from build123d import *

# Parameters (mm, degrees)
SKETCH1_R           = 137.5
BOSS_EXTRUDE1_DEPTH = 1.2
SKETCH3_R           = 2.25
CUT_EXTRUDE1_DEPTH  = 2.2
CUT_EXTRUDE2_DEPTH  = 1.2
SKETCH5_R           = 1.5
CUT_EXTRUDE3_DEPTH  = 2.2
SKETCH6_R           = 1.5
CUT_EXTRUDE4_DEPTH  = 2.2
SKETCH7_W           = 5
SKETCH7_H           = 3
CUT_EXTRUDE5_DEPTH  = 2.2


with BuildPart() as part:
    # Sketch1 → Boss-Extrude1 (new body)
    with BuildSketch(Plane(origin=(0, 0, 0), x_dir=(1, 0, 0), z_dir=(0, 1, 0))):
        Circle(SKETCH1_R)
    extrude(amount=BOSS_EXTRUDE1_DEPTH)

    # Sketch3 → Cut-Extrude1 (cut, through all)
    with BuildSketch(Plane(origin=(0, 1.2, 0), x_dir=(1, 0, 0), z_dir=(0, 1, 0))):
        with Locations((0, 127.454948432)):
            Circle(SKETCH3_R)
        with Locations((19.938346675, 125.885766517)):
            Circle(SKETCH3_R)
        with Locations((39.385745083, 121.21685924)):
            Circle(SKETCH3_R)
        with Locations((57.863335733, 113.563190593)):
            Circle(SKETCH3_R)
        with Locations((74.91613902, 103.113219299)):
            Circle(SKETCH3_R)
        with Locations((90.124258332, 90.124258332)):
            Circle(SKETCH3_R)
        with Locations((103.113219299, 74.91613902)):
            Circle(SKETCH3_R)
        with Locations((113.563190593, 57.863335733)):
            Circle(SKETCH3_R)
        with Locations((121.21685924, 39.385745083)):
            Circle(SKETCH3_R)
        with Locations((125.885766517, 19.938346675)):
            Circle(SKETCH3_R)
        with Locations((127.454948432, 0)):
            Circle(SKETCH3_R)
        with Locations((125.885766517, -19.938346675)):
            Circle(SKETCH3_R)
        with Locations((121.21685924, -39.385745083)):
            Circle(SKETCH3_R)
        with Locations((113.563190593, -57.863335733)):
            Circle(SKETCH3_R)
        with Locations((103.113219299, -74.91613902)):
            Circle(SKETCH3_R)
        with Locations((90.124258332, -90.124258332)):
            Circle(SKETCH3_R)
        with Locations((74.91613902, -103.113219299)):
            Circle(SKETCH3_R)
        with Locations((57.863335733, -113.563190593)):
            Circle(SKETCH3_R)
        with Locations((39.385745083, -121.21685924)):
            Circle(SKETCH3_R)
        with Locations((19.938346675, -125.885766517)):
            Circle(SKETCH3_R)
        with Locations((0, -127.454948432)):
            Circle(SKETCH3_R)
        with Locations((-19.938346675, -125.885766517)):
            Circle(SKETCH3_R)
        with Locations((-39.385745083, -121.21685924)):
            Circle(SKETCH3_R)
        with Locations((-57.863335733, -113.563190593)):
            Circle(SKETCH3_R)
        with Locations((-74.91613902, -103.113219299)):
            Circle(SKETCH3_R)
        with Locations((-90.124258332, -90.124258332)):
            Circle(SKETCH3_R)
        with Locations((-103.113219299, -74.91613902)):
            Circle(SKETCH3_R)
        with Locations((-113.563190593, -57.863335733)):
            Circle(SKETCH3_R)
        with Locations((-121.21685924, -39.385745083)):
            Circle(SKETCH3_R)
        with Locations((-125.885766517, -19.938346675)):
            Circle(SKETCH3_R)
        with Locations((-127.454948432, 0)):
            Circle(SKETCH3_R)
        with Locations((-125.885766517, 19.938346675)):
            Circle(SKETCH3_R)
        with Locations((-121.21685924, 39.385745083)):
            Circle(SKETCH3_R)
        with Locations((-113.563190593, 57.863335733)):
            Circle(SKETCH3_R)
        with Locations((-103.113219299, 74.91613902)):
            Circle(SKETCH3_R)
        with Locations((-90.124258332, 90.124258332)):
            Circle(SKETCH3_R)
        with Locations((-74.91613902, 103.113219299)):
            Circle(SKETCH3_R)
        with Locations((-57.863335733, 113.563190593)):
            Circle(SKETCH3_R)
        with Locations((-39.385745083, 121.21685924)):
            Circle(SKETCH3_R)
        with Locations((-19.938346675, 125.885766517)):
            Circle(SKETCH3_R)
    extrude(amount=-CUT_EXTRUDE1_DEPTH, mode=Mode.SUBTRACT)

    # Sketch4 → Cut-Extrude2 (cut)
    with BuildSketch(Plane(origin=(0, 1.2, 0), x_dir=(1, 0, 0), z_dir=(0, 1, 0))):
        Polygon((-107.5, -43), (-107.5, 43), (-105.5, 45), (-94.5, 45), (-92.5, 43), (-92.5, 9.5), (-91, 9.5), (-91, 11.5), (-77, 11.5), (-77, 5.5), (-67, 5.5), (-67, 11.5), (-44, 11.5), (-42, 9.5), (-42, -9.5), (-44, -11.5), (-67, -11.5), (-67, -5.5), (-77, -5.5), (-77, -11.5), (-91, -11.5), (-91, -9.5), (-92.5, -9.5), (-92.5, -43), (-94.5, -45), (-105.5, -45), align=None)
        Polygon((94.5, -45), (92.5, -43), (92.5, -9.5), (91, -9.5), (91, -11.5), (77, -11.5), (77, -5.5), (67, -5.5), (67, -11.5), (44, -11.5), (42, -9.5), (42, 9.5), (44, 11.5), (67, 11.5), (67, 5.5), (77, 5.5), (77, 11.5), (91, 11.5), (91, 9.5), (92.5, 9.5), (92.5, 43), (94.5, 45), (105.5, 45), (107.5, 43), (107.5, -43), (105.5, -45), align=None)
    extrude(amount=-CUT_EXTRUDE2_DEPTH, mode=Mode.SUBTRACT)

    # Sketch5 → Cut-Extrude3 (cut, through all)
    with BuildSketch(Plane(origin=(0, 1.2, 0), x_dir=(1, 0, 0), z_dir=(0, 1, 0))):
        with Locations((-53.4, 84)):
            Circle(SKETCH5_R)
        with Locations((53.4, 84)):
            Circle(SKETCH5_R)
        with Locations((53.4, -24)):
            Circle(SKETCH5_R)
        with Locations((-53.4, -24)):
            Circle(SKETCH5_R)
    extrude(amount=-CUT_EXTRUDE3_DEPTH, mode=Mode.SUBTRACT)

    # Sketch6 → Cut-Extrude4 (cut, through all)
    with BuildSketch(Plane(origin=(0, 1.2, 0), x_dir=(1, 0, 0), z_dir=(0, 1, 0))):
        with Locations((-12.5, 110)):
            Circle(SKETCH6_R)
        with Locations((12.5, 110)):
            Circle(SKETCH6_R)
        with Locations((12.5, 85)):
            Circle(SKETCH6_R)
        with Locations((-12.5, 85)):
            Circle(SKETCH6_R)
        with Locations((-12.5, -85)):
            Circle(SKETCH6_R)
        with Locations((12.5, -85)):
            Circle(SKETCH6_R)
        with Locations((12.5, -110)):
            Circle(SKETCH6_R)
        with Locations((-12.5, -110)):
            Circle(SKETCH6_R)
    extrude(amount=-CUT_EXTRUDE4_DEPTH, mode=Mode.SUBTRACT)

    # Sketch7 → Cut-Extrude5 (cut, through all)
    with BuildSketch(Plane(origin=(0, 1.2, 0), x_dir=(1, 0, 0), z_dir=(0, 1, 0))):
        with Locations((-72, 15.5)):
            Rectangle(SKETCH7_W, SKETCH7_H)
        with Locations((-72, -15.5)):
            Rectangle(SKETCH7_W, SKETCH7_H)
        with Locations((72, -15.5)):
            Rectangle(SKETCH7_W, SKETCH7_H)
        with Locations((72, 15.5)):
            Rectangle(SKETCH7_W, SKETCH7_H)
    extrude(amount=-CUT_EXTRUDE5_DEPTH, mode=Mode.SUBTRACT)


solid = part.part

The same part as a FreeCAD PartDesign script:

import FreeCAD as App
import Part
import Sketcher

V = App.Vector


def add_polygon(sketch, points):
    """Adds a closed chain of lines whose ends are joined by coincident constraints."""
    first, n = sketch.GeometryCount, len(points)
    for a, b in zip(points, points[1:] + points[:1]):
        sketch.addGeometry(Part.LineSegment(App.Vector(*a, 0), App.Vector(*b, 0)), False)
    for i in range(n):
        sketch.addConstraint(Sketcher.Constraint("Coincident", first + i, 2, first + (i + 1) % n, 1))

doc = App.newDocument("Part")
body = doc.addObject("PartDesign::Body", "Body")

# Sketch on XZ plane
sketch1 = doc.addObject("Sketcher::SketchObject", "Sketch")
body.addObject(sketch1)
sketch1.AttachmentSupport = (doc.XZ_Plane, [""])
sketch1.MapMode = "FlatFace"
sketch1.addGeometry(Part.Circle(V(0, 0, 0), V(0, 0, 1), 138), False)
sketch1.addConstraint([
    Sketcher.Constraint("Coincident", 0, 3, -1, 1),
    Sketcher.Constraint("Diameter", 0, 275.0),
])
pad1 = doc.addObject("PartDesign::Pad", "Pad")
body.addObject(pad1)
pad1.Profile = sketch1
pad1.Length = 1.2
pad1.Reversed = True

# Sketch on XZ plane
sketch2 = doc.addObject("Sketcher::SketchObject", "Sketch001")
body.addObject(sketch2)
sketch2.AttachmentSupport = (doc.XZ_Plane, [""])
sketch2.MapMode = "FlatFace"
sketch2.AttachmentOffset = App.Placement(V(0, 0, -1.2), App.Rotation())
sketch2.addGeometry([
    Part.Circle(V(0, -127.5, 0), V(0, 0, 1), 2.2),  # 0
    Part.Circle(V(19.9, -125.9, 0), V(0, 0, 1), 2.2),  # 1
    Part.Circle(V(39.4, -121.2, 0), V(0, 0, 1), 2.2),  # 2
    Part.Circle(V(57.9, -113.6, 0), V(0, 0, 1), 2.2),  # 3
    Part.Circle(V(74.9, -103.1, 0), V(0, 0, 1), 2.2),  # 4
    Part.Circle(V(90.1, -90.1, 0), V(0, 0, 1), 2.2),  # 5
    Part.Circle(V(103.1, -74.9, 0), V(0, 0, 1), 2.2),  # 6
    Part.Circle(V(113.6, -57.9, 0), V(0, 0, 1), 2.2),  # 7
    Part.Circle(V(121.2, -39.4, 0), V(0, 0, 1), 2.2),  # 8
    Part.Circle(V(125.9, -19.9, 0), V(0, 0, 1), 2.2),  # 9
    Part.Circle(V(127.5, 0, 0), V(0, 0, 1), 2.2),  # 10
    Part.Circle(V(125.9, 19.9, 0), V(0, 0, 1), 2.2),  # 11
    Part.Circle(V(121.2, 39.4, 0), V(0, 0, 1), 2.2),  # 12
    Part.Circle(V(113.6, 57.9, 0), V(0, 0, 1), 2.2),  # 13
    Part.Circle(V(103.1, 74.9, 0), V(0, 0, 1), 2.2),  # 14
    Part.Circle(V(90.1, 90.1, 0), V(0, 0, 1), 2.2),  # 15
    Part.Circle(V(74.9, 103.1, 0), V(0, 0, 1), 2.2),  # 16
    Part.Circle(V(57.9, 113.6, 0), V(0, 0, 1), 2.2),  # 17
    Part.Circle(V(39.4, 121.2, 0), V(0, 0, 1), 2.2),  # 18
    Part.Circle(V(19.9, 125.9, 0), V(0, 0, 1), 2.2),  # 19
    Part.Circle(V(0, 127.5, 0), V(0, 0, 1), 2.2),  # 20
    Part.Circle(V(-19.9, 125.9, 0), V(0, 0, 1), 2.2),  # 21
    Part.Circle(V(-39.4, 121.2, 0), V(0, 0, 1), 2.2),  # 22
    Part.Circle(V(-57.9, 113.6, 0), V(0, 0, 1), 2.2),  # 23
    Part.Circle(V(-74.9, 103.1, 0), V(0, 0, 1), 2.2),  # 24
    Part.Circle(V(-90.1, 90.1, 0), V(0, 0, 1), 2.2),  # 25
    Part.Circle(V(-103.1, 74.9, 0), V(0, 0, 1), 2.2),  # 26
    Part.Circle(V(-113.6, 57.9, 0), V(0, 0, 1), 2.2),  # 27
    Part.Circle(V(-121.2, 39.4, 0), V(0, 0, 1), 2.2),  # 28
    Part.Circle(V(-125.9, 19.9, 0), V(0, 0, 1), 2.2),  # 29
    Part.Circle(V(-127.5, 0, 0), V(0, 0, 1), 2.2),  # 30
    Part.Circle(V(-125.9, -19.9, 0), V(0, 0, 1), 2.2),  # 31
    Part.Circle(V(-121.2, -39.4, 0), V(0, 0, 1), 2.2),  # 32
    Part.Circle(V(-113.6, -57.9, 0), V(0, 0, 1), 2.2),  # 33
    Part.Circle(V(-103.1, -74.9, 0), V(0, 0, 1), 2.2),  # 34
    Part.Circle(V(-90.1, -90.1, 0), V(0, 0, 1), 2.2),  # 35
    Part.Circle(V(-74.9, -103.1, 0), V(0, 0, 1), 2.2),  # 36
    Part.Circle(V(-57.9, -113.6, 0), V(0, 0, 1), 2.2),  # 37
    Part.Circle(V(-39.4, -121.2, 0), V(0, 0, 1), 2.2),  # 38
    Part.Circle(V(-19.9, -125.9, 0), V(0, 0, 1), 2.2),  # 39
], False)
sketch2.addConstraint([
    Sketcher.Constraint("Equal", 0, 1),
    Sketcher.Constraint("Equal", 1, 2),
    Sketcher.Constraint("Equal", 2, 3),
    Sketcher.Constraint("Equal", 3, 4),
    Sketcher.Constraint("Equal", 4, 5),
    Sketcher.Constraint("Equal", 5, 6),
    Sketcher.Constraint("Equal", 6, 7),
    Sketcher.Constraint("Equal", 7, 8),
    Sketcher.Constraint("Equal", 8, 9),
    Sketcher.Constraint("Equal", 9, 10),
    Sketcher.Constraint("Equal", 10, 11),
    Sketcher.Constraint("Equal", 11, 12),
    Sketcher.Constraint("Equal", 12, 13),
    Sketcher.Constraint("Equal", 13, 14),
    Sketcher.Constraint("Equal", 14, 15),
    Sketcher.Constraint("Equal", 15, 16),
    Sketcher.Constraint("Equal", 16, 17),
    Sketcher.Constraint("Equal", 17, 18),
    Sketcher.Constraint("Equal", 18, 19),
    Sketcher.Constraint("Equal", 19, 20),
    Sketcher.Constraint("Equal", 20, 21),
    Sketcher.Constraint("Equal", 21, 22),
    Sketcher.Constraint("Equal", 22, 23),
    Sketcher.Constraint("Equal", 23, 24),
    Sketcher.Constraint("Equal", 24, 25),
    Sketcher.Constraint("Equal", 25, 26),
    Sketcher.Constraint("Equal", 26, 27),
    Sketcher.Constraint("Equal", 27, 28),
    Sketcher.Constraint("Equal", 28, 29),
    Sketcher.Constraint("Equal", 29, 30),
    Sketcher.Constraint("Equal", 30, 31),
    Sketcher.Constraint("Equal", 31, 32),
    Sketcher.Constraint("Equal", 32, 33),
    Sketcher.Constraint("Equal", 33, 34),
    Sketcher.Constraint("Equal", 34, 35),
    Sketcher.Constraint("Equal", 35, 36),
    Sketcher.Constraint("Equal", 36, 37),
    Sketcher.Constraint("Equal", 37, 38),
    Sketcher.Constraint("Equal", 38, 39),
    Sketcher.Constraint("Symmetric", 0, 3, 20, 3, -1, 1),
    Sketcher.Constraint("Symmetric", 1, 3, 21, 3, -1, 1),
    Sketcher.Constraint("Symmetric", 2, 3, 22, 3, -1, 1),
    Sketcher.Constraint("Symmetric", 3, 3, 23, 3, -1, 1),
    Sketcher.Constraint("Symmetric", 4, 3, 24, 3, -1, 1),
    Sketcher.Constraint("Symmetric", 5, 3, 25, 3, -1, 1),
    Sketcher.Constraint("Symmetric", 6, 3, 26, 3, -1, 1),
    Sketcher.Constraint("Symmetric", 7, 3, 27, 3, -1, 1),
    Sketcher.Constraint("Symmetric", 8, 3, 28, 3, -1, 1),
    Sketcher.Constraint("Symmetric", 9, 3, 29, 3, -1, 1),
    Sketcher.Constraint("Symmetric", 10, 3, 30, 3, -1, 1),
    Sketcher.Constraint("Symmetric", 11, 3, 31, 3, -1, 1),
    Sketcher.Constraint("Symmetric", 12, 3, 32, 3, -1, 1),
    Sketcher.Constraint("Symmetric", 13, 3, 33, 3, -1, 1),
    Sketcher.Constraint("Symmetric", 14, 3, 34, 3, -1, 1),
    Sketcher.Constraint("Symmetric", 15, 3, 35, 3, -1, 1),
    Sketcher.Constraint("Symmetric", 16, 3, 36, 3, -1, 1),
    Sketcher.Constraint("Symmetric", 17, 3, 37, 3, -1, 1),
    Sketcher.Constraint("Symmetric", 18, 3, 38, 3, -1, 1),
    Sketcher.Constraint("Symmetric", 19, 3, 39, 3, -1, 1),
    Sketcher.Constraint("Symmetric", 19, 3, 21, 3, -2),
    Sketcher.Constraint("Symmetric", 18, 3, 22, 3, -2),
    Sketcher.Constraint("Symmetric", 17, 3, 23, 3, -2),
    Sketcher.Constraint("Symmetric", 16, 3, 24, 3, -2),
    Sketcher.Constraint("Symmetric", 15, 3, 25, 3, -2),
    Sketcher.Constraint("Symmetric", 14, 3, 26, 3, -2),
    Sketcher.Constraint("Symmetric", 13, 3, 27, 3, -2),
    Sketcher.Constraint("Symmetric", 12, 3, 28, 3, -2),
    Sketcher.Constraint("Symmetric", 11, 3, 29, 3, -2),
    Sketcher.Constraint("PointOnObject", 0, 3, -2),
    Sketcher.Constraint("PointOnObject", 10, 3, -1),
    Sketcher.Constraint("Diameter", 0, 4.5),
    Sketcher.Constraint("DistanceX", 1, 3, 2, 3, 19.447398),
    Sketcher.Constraint("DistanceY", 2, 3, 5, 3, 31.092601),
    Sketcher.Constraint("DistanceX", 5, 3, 8, 3, 31.092601),
    Sketcher.Constraint("DistanceY", 8, 3, 9, 3, 19.447398),
    Sketcher.Constraint("DistanceY", 0, 3, -1, 1, 127.454948),
    Sketcher.Constraint("DistanceY", 2, 3, -1, 1, 121.216859),
    Sketcher.Constraint("DistanceY", 3, 3, -1, 1, 113.563191),
    Sketcher.Constraint("DistanceX", -1, 1, 4, 3, 74.916139),
    Sketcher.Constraint("DistanceY", 4, 3, -1, 1, 103.113219),
    Sketcher.Constraint("DistanceX", -1, 1, 5, 3, 90.124258),
    Sketcher.Constraint("DistanceX", -1, 1, 6, 3, 103.113219),
    Sketcher.Constraint("DistanceY", 6, 3, -1, 1, 74.916139),
    Sketcher.Constraint("DistanceX", -1, 1, 7, 3, 113.563191),
    Sketcher.Constraint("DistanceX", -1, 1, 10, 3, 127.454948),
    Sketcher.Constraint("DistanceY", 0, 3, 1, 3, 1.569182),
    Sketcher.Constraint("DistanceX", 2, 3, 3, 3, 18.477591),
    Sketcher.Constraint("DistanceX", 1, 3, 5, 3, 70.185912),
    Sketcher.Constraint("DistanceY", 7, 3, 8, 3, 18.477591),
    Sketcher.Constraint("DistanceX", 5, 3, 9, 3, 35.761508),
    Sketcher.Constraint("DistanceY", 5, 3, 9, 3, 70.185912),
])
pocket1 = doc.addObject("PartDesign::Pocket", "Pocket")
body.addObject(pocket1)
pocket1.Profile = sketch2
pocket1.Type = "ThroughAll"
pocket1.Reversed = True

# Sketch on XZ plane
sketch3 = doc.addObject("Sketcher::SketchObject", "Sketch002")
body.addObject(sketch3)
sketch3.AttachmentSupport = (doc.XZ_Plane, [""])
sketch3.MapMode = "FlatFace"
sketch3.AttachmentOffset = App.Placement(V(0, 0, -1.2), App.Rotation())
add_polygon(sketch3, [(-107.5, -43), (-107.5, 43), (-105.5, 45), (-94.5, 45), (-92.5, 43), (-92.5, 9.5), (-91, 9.5), (-91, 11.5), (-77, 11.5), (-77, 5.5), (-67, 5.5), (-67, 11.5), (-44, 11.5), (-42, 9.5), (-42, -9.5), (-44, -11.5), (-67, -11.5), (-67, -5.5), (-77, -5.5), (-77, -11.5), (-91, -11.5), (-91, -9.5), (-92.5, -9.5), (-92.5, -43), (-94.5, -45), (-105.5, -45)])  # lines 0-25
add_polygon(sketch3, [(92.5, 43), (94.5, 45), (105.5, 45), (107.5, 43), (107.5, -43), (105.5, -45), (94.5, -45), (92.5, -43), (92.5, -9.5), (91, -9.5), (91, -11.5), (77, -11.5), (77, -5.5), (67, -5.5), (67, -11.5), (44, -11.5), (42, -9.5), (42, 9.5), (44, 11.5), (67, 11.5), (67, 5.5), (77, 5.5), (77, 11.5), (91, 11.5), (91, 9.5), (92.5, 9.5)])  # lines 26-51
sketch3.addConstraint([
    Sketcher.Constraint("Vertical", 0),
    Sketcher.Constraint("Horizontal", 2),
    Sketcher.Constraint("Vertical", 4),
    Sketcher.Constraint("Horizontal", 5),
    Sketcher.Constraint("Vertical", 6),
    Sketcher.Constraint("Horizontal", 7),
    Sketcher.Constraint("Vertical", 8),
    Sketcher.Constraint("Horizontal", 9),
    Sketcher.Constraint("Vertical", 10),
    Sketcher.Constraint("Horizontal", 11),
    Sketcher.Constraint("Vertical", 13),
    Sketcher.Constraint("Horizontal", 15),
    Sketcher.Constraint("Vertical", 16),
    Sketcher.Constraint("Horizontal", 17),
    Sketcher.Constraint("Vertical", 18),
    Sketcher.Constraint("Horizontal", 19),
    Sketcher.Constraint("Vertical", 20),
    Sketcher.Constraint("Horizontal", 21),
    Sketcher.Constraint("Vertical", 22),
    Sketcher.Constraint("Horizontal", 24),
    Sketcher.Constraint("Horizontal", 27),
    Sketcher.Constraint("Vertical", 29),
    Sketcher.Constraint("Horizontal", 31),
    Sketcher.Constraint("Vertical", 33),
    Sketcher.Constraint("Horizontal", 34),
    Sketcher.Constraint("Vertical", 35),
    Sketcher.Constraint("Horizontal", 36),
    Sketcher.Constraint("Vertical", 37),
    Sketcher.Constraint("Horizontal", 38),
    Sketcher.Constraint("Vertical", 39),
    Sketcher.Constraint("Horizontal", 40),
    Sketcher.Constraint("Vertical", 42),
    Sketcher.Constraint("Horizontal", 44),
    Sketcher.Constraint("Vertical", 45),
    Sketcher.Constraint("Horizontal", 46),
    Sketcher.Constraint("Vertical", 47),
    Sketcher.Constraint("Horizontal", 48),
    Sketcher.Constraint("Vertical", 49),
    Sketcher.Constraint("Horizontal", 50),
    Sketcher.Constraint("Vertical", 51),
    Sketcher.Constraint("Symmetric", 23, 2, 26, 2, -1, 1),
    Sketcher.Constraint("Symmetric", 25, 2, 28, 2, -1, 1),
    Sketcher.Constraint("Symmetric", 1, 2, 30, 2, -1, 1),
    Sketcher.Constraint("Symmetric", 3, 2, 32, 2, -1, 1),
    Sketcher.Constraint("Symmetric", 5, 2, 34, 2, -1, 1),
    Sketcher.Constraint("Symmetric", 7, 2, 36, 2, -1, 1),
    Sketcher.Constraint("Symmetric", 9, 2, 38, 2, -1, 1),
    Sketcher.Constraint("Symmetric", 11, 2, 40, 2, -1, 1),
    Sketcher.Constraint("Symmetric", 12, 2, 41, 2, -1, 1),
    Sketcher.Constraint("Symmetric", 14, 2, 43, 2, -1, 1),
    Sketcher.Constraint("Symmetric", 16, 2, 45, 2, -1, 1),
    Sketcher.Constraint("Symmetric", 18, 2, 47, 2, -1, 1),
    Sketcher.Constraint("Symmetric", 20, 2, 49, 2, -1, 1),
    Sketcher.Constraint("Symmetric", 22, 2, 51, 2, -1, 1),
    Sketcher.Constraint("Symmetric", 2, 2, 26, 2, -2),
    Sketcher.Constraint("Symmetric", 22, 2, 32, 2, -2),
    Sketcher.Constraint("Symmetric", 20, 2, 34, 2, -2),
    Sketcher.Constraint("Symmetric", 18, 2, 36, 2, -2),
    Sketcher.Constraint("Symmetric", 16, 2, 38, 2, -2),
    Sketcher.Constraint("Symmetric", 14, 2, 40, 2, -2),
    Sketcher.Constraint("Perpendicular", 1, 3),
    Sketcher.Constraint("Parallel", 3, 12),
    Sketcher.Constraint("Perpendicular", 12, 14),
    Sketcher.Constraint("Parallel", 14, 23),
    Sketcher.Constraint("Perpendicular", 23, 25),
    Sketcher.Constraint("Perpendicular", 26, 28),
    Sketcher.Constraint("Perpendicular", 28, 30),
    Sketcher.Constraint("Perpendicular", 30, 32),
    Sketcher.Constraint("Perpendicular", 41, 43),
    Sketcher.Constraint("Horizontal", 0, 2, 3, 2),
    Sketcher.Constraint("Horizontal", 7, 2, 10, 2),
    Sketcher.Constraint("Horizontal", 5, 2, 12, 2),
    Sketcher.Constraint("Horizontal", 22, 2, 25, 2),
    Sketcher.Constraint("Equal", 3, 12),
    Sketcher.Constraint("DistanceX", 2, 1, 2, 2, 11.0),
    Sketcher.Constraint("DistanceX", 7, 1, 7, 2, 14.0),
    Sketcher.Constraint("DistanceX", 9, 1, 9, 2, 10.0),
    Sketcher.Constraint("DistanceX", 11, 1, 11, 2, 23.0),
    Sketcher.Constraint("DistanceY", 0, 1, 0, 2, 86.0),
    Sketcher.Constraint("DistanceY", 6, 1, 6, 2, 2.0),
    Sketcher.Constraint("DistanceY", 8, 2, 8, 1, 6.0),
    Sketcher.Constraint("DistanceY", 13, 2, 13, 1, 19.0),
    Sketcher.Constraint("DistanceX", 5, 1, 5, 2, 1.5),
    Sketcher.Constraint("DistanceX", 5, 2, -1, 1, 91.0),
])
pocket2 = doc.addObject("PartDesign::Pocket", "Pocket001")
body.addObject(pocket2)
pocket2.Profile = sketch3
pocket2.Length = 1.2
pocket2.Reversed = True

# Sketch on XZ plane
sketch4 = doc.addObject("Sketcher::SketchObject", "Sketch003")
body.addObject(sketch4)
sketch4.AttachmentSupport = (doc.XZ_Plane, [""])
sketch4.MapMode = "FlatFace"
sketch4.AttachmentOffset = App.Placement(V(0, 0, -1.2), App.Rotation())
sketch4.addGeometry([
    Part.Circle(V(-53.4, -84, 0), V(0, 0, 1), 1.5),
    Part.Circle(V(53.4, -84, 0), V(0, 0, 1), 1.5),
    Part.Circle(V(53.4, 24, 0), V(0, 0, 1), 1.5),
    Part.Circle(V(-53.4, 24, 0), V(0, 0, 1), 1.5),
], False)
sketch4.addConstraint([
    Sketcher.Constraint("Equal", 0, 1),
    Sketcher.Constraint("Equal", 1, 2),
    Sketcher.Constraint("Equal", 2, 3),
    Sketcher.Constraint("Symmetric", 0, 3, 1, 3, -2),
    Sketcher.Constraint("Symmetric", 2, 3, 3, 3, -2),
    Sketcher.Constraint("Vertical", 1, 3, 2, 3),
    Sketcher.Constraint("Diameter", 0, 3.0),
    Sketcher.Constraint("DistanceY", 0, 3, -1, 1, 84.0),
    Sketcher.Constraint("DistanceY", -1, 1, 2, 3, 24.0),
    Sketcher.Constraint("DistanceX", 0, 3, -1, 1, 53.4),
])
pocket3 = doc.addObject("PartDesign::Pocket", "Pocket002")
body.addObject(pocket3)
pocket3.Profile = sketch4
pocket3.Type = "ThroughAll"
pocket3.Reversed = True

# Sketch on XZ plane
sketch5 = doc.addObject("Sketcher::SketchObject", "Sketch004")
body.addObject(sketch5)
sketch5.AttachmentSupport = (doc.XZ_Plane, [""])
sketch5.MapMode = "FlatFace"
sketch5.AttachmentOffset = App.Placement(V(0, 0, -1.2), App.Rotation())
sketch5.addGeometry([
    Part.Circle(V(-12.5, -110, 0), V(0, 0, 1), 1.5),  # 0
    Part.Circle(V(12.5, -110, 0), V(0, 0, 1), 1.5),  # 1
    Part.Circle(V(12.5, -85, 0), V(0, 0, 1), 1.5),  # 2
    Part.Circle(V(-12.5, -85, 0), V(0, 0, 1), 1.5),  # 3
    Part.Circle(V(-12.5, 85, 0), V(0, 0, 1), 1.5),  # 4
    Part.Circle(V(12.5, 85, 0), V(0, 0, 1), 1.5),  # 5
    Part.Circle(V(12.5, 110, 0), V(0, 0, 1), 1.5),  # 6
    Part.Circle(V(-12.5, 110, 0), V(0, 0, 1), 1.5),  # 7
], False)
sketch5.addConstraint([
    Sketcher.Constraint("Equal", 0, 1),
    Sketcher.Constraint("Equal", 1, 2),
    Sketcher.Constraint("Equal", 2, 3),
    Sketcher.Constraint("Equal", 3, 4),
    Sketcher.Constraint("Equal", 4, 5),
    Sketcher.Constraint("Equal", 5, 6),
    Sketcher.Constraint("Equal", 6, 7),
    Sketcher.Constraint("Symmetric", 2, 3, 4, 3, -1, 1),
    Sketcher.Constraint("Symmetric", 3, 3, 5, 3, -1, 1),
    Sketcher.Constraint("Symmetric", 0, 3, 6, 3, -1, 1),
    Sketcher.Constraint("Symmetric", 1, 3, 7, 3, -1, 1),
    Sketcher.Constraint("Symmetric", 0, 3, 1, 3, -2),
    Sketcher.Constraint("Symmetric", 2, 3, 3, 3, -2),
    Sketcher.Constraint("Vertical", 1, 3, 2, 3),
    Sketcher.Constraint("Diameter", 0, 3.0),
    Sketcher.Constraint("DistanceY", 0, 3, -1, 1, 110.0),
    Sketcher.Constraint("DistanceY", 2, 3, -1, 1, 85.0),
    Sketcher.Constraint("DistanceX", 0, 3, 1, 3, 25.0),
])
pocket4 = doc.addObject("PartDesign::Pocket", "Pocket003")
body.addObject(pocket4)
pocket4.Profile = sketch5
pocket4.Type = "ThroughAll"
pocket4.Reversed = True

# Sketch on XZ plane
sketch6 = doc.addObject("Sketcher::SketchObject", "Sketch005")
body.addObject(sketch6)
sketch6.AttachmentSupport = (doc.XZ_Plane, [""])
sketch6.MapMode = "FlatFace"
sketch6.AttachmentOffset = App.Placement(V(0, 0, -1.2), App.Rotation())
add_polygon(sketch6, [(-74.5, -17), (-74.5, -14), (-69.5, -14), (-69.5, -17)])  # lines 0-3
add_polygon(sketch6, [(-74.5, 14), (-74.5, 17), (-69.5, 17), (-69.5, 14)])  # lines 4-7
add_polygon(sketch6, [(69.5, 14), (69.5, 17), (74.5, 17), (74.5, 14)])  # lines 8-11
add_polygon(sketch6, [(69.5, -17), (69.5, -14), (74.5, -14), (74.5, -17)])  # lines 12-15
sketch6.addConstraint([
    Sketcher.Constraint("Vertical", 0),
    Sketcher.Constraint("Horizontal", 1),
    Sketcher.Constraint("Vertical", 2),
    Sketcher.Constraint("Horizontal", 3),
    Sketcher.Constraint("Vertical", 4),
    Sketcher.Constraint("Horizontal", 5),
    Sketcher.Constraint("Vertical", 6),
    Sketcher.Constraint("Horizontal", 7),
    Sketcher.Constraint("Vertical", 8),
    Sketcher.Constraint("Horizontal", 9),
    Sketcher.Constraint("Vertical", 10),
    Sketcher.Constraint("Horizontal", 11),
    Sketcher.Constraint("Vertical", 12),
    Sketcher.Constraint("Horizontal", 13),
    Sketcher.Constraint("Vertical", 14),
    Sketcher.Constraint("Horizontal", 15),
    Sketcher.Constraint("Symmetric", 2, 2, 8, 2, -1, 1),
    Sketcher.Constraint("Symmetric", 0, 2, 10, 2, -1, 1),
    Sketcher.Constraint("Symmetric", 6, 2, 12, 2, -1, 1),
    Sketcher.Constraint("Symmetric", 4, 2, 14, 2, -1, 1),
    Sketcher.Constraint("Symmetric", 5, 2, 8, 2, -2),
    Sketcher.Constraint("Symmetric", 7, 2, 10, 2, -2),
    Sketcher.Constraint("DistanceX", 1, 1, 1, 2, 5.0),
    Sketcher.Constraint("DistanceY", 0, 1, 0, 2, 3.0),
    Sketcher.Constraint("DistanceY", 0, 2, -1, 1, 14.0),
    Sketcher.Constraint("DistanceX", 5, 2, 8, 2, 139.0),
])
pocket5 = doc.addObject("PartDesign::Pocket", "Pocket004")
body.addObject(pocket5)
pocket5.Profile = sketch6
pocket5.Type = "ThroughAll"
pocket5.Reversed = True

doc.recompute()
